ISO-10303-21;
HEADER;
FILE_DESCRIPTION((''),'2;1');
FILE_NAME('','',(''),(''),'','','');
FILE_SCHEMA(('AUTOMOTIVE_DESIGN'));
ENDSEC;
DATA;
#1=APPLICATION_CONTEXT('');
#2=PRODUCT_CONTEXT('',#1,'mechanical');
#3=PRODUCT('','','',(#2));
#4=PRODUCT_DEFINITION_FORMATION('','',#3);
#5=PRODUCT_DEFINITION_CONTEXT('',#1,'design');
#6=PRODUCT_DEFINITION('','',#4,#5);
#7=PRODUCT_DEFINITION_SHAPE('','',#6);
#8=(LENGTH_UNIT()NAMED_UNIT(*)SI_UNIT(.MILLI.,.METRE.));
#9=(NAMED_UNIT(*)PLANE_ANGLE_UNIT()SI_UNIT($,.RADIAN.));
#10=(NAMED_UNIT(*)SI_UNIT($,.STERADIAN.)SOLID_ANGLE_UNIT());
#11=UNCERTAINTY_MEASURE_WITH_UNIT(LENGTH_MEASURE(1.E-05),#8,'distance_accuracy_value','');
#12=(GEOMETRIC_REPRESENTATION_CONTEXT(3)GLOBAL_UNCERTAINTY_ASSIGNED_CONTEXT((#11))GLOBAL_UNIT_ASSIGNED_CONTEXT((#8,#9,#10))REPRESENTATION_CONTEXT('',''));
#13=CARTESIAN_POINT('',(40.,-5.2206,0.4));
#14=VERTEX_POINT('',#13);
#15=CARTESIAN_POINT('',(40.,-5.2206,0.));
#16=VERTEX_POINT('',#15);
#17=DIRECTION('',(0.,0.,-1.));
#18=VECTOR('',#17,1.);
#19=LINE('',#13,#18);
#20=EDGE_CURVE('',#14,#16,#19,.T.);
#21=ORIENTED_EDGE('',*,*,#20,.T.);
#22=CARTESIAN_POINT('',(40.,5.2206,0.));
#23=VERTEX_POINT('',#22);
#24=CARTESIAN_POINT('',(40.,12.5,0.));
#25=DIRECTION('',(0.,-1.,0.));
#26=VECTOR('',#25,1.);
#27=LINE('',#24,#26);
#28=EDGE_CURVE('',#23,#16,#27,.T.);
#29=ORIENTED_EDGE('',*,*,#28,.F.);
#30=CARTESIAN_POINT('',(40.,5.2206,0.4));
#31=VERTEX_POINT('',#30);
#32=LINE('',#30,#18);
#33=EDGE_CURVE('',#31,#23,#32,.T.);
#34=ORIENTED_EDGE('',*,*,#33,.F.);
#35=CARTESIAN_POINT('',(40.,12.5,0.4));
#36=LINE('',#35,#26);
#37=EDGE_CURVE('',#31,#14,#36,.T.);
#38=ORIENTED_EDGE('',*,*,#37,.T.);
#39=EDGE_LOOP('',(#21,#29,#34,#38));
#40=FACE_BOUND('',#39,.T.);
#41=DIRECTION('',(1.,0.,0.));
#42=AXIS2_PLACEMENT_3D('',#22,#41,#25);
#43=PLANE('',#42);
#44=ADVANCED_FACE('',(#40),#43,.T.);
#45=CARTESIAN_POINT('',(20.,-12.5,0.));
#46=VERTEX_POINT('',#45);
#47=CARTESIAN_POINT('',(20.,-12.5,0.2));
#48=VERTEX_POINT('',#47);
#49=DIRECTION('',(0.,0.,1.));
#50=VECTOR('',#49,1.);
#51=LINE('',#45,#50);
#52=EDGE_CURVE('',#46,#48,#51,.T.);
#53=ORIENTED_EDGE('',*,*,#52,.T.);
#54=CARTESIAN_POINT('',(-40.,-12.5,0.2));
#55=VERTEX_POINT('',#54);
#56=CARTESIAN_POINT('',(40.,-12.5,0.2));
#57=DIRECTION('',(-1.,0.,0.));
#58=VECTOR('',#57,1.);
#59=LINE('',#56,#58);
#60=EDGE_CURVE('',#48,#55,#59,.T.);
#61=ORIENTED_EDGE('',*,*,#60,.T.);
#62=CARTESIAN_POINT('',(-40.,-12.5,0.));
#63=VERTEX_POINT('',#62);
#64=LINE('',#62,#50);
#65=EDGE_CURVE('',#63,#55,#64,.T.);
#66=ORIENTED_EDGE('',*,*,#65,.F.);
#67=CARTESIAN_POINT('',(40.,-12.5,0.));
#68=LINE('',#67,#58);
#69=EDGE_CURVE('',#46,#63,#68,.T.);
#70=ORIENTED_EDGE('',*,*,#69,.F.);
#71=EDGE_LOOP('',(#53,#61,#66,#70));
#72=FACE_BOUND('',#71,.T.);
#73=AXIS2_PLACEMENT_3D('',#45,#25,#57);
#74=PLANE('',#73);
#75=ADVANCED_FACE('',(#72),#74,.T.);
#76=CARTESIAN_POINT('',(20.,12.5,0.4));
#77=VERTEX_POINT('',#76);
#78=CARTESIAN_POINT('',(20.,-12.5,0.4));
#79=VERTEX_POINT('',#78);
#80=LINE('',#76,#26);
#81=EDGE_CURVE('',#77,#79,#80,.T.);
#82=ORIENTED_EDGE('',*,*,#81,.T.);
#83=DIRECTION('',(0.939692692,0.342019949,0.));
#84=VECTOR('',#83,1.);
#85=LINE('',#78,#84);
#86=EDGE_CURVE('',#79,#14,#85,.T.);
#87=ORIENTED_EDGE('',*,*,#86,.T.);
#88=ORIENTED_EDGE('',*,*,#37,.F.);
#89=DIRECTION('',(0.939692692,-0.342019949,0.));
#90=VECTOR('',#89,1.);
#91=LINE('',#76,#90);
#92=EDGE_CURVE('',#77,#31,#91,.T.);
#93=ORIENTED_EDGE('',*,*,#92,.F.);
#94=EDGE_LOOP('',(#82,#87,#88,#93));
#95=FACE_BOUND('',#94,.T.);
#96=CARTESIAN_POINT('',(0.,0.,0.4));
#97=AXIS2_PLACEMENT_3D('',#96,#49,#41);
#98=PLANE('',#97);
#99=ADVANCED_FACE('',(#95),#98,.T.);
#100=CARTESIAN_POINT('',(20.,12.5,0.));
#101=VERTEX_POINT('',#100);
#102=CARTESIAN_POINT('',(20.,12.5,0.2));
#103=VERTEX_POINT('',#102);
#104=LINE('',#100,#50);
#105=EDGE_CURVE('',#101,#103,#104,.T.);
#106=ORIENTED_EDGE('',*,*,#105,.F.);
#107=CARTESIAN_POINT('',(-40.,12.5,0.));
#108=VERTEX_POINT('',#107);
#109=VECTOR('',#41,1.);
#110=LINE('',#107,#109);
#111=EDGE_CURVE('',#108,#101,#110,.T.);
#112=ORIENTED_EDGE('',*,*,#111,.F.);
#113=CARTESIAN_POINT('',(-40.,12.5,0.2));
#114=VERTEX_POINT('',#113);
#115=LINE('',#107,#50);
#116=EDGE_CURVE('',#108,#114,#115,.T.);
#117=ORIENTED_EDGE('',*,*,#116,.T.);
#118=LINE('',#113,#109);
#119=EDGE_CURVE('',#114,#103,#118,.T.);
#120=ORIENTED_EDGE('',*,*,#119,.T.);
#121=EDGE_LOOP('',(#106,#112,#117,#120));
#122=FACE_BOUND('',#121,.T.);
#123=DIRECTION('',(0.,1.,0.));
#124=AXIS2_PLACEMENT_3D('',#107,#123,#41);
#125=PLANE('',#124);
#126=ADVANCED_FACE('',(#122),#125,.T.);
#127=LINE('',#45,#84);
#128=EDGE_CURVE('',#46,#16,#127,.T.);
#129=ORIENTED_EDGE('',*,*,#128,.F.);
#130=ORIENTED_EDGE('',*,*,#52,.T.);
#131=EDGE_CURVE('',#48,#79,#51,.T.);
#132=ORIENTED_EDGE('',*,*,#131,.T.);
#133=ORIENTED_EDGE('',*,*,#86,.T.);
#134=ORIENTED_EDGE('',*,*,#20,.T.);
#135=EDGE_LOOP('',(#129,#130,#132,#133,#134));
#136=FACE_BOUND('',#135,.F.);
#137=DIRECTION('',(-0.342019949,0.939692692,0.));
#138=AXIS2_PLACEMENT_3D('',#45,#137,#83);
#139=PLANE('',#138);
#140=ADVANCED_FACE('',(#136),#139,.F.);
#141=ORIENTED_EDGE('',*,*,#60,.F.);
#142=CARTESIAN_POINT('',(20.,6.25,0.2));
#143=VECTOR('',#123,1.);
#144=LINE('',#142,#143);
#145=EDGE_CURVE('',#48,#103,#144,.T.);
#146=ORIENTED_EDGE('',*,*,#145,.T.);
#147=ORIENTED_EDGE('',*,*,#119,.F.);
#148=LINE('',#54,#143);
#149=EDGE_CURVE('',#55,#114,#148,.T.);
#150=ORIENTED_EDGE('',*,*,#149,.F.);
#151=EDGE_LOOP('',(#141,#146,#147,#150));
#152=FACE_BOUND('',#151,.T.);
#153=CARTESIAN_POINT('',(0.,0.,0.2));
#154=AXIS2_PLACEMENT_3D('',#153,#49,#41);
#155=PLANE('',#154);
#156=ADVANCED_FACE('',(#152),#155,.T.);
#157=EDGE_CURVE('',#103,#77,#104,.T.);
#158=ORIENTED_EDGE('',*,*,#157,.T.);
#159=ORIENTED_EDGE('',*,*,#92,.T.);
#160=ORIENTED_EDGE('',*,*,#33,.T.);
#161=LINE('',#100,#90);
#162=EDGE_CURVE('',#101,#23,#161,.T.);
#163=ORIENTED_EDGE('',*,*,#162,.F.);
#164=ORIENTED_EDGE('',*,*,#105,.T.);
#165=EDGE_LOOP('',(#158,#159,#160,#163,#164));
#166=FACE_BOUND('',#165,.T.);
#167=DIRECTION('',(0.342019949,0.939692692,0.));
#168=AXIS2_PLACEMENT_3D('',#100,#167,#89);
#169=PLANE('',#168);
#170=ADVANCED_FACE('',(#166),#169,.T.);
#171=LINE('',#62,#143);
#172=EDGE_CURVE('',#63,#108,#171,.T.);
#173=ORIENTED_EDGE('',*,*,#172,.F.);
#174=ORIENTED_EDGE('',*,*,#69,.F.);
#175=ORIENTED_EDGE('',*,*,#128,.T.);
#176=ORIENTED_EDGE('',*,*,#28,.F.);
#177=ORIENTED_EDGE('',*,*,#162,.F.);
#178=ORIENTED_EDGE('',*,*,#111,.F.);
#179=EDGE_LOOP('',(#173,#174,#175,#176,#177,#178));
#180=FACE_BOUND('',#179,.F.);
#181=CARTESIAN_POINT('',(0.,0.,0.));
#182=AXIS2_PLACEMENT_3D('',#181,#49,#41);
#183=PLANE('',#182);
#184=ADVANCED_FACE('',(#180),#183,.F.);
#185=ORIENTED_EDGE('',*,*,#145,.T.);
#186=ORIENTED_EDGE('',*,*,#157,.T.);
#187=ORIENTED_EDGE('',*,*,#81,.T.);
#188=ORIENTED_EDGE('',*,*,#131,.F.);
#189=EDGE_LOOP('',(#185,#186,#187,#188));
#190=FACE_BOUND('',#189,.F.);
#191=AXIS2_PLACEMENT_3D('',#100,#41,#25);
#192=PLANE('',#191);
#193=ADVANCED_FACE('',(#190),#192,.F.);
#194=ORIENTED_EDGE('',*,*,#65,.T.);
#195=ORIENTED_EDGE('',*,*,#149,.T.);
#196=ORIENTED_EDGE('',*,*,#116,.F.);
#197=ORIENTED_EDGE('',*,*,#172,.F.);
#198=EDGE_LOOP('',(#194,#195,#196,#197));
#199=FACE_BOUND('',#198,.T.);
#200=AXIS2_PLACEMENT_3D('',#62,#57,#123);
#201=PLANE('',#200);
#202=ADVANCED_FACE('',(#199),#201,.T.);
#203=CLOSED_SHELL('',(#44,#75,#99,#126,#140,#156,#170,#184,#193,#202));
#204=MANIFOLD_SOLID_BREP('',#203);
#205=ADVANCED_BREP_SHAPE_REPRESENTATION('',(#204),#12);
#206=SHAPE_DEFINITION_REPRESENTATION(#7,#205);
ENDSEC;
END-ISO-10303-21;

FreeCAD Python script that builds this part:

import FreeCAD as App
import Part
import Sketcher

V = App.Vector
Q = App.Units.Quantity


def add_polygon(sketch, points):
    """Adds a closed chain of lines whose ends are joined by coincident constraints."""
    first, n = sketch.GeometryCount, len(points)
    for a, b in zip(points, points[1:] + points[:1]):
        sketch.addGeometry(Part.LineSegment(App.Vector(*a, 0), App.Vector(*b, 0)), False)
    for i in range(n):
        sketch.addConstraint(Sketcher.Constraint("Coincident", first + i, 2, first + (i + 1) % n, 1))

doc = App.newDocument("Part")
body = doc.addObject("PartDesign::Body", "Body")

# Sketch on XY plane
sketch1 = doc.addObject("Sketcher::SketchObject", "Sketch")
body.addObject(sketch1)
sketch1.AttachmentSupport = (doc.XY_Plane, [""])
sketch1.MapMode = "FlatFace"
add_polygon(sketch1, [(20, 12), (-40, 12), (-40, -12), (20, -12), (40, -5), (40, 5)])  # lines 0-5
sketch1.addConstraint([
    Sketcher.Constraint("Horizontal", 0),
    Sketcher.Constraint("Vertical", 1),
    Sketcher.Constraint("Horizontal", 2),
    Sketcher.Constraint("Vertical", 4),
    Sketcher.Constraint("Symmetric", 2, 2, 5, 2, -1),
    Sketcher.Constraint("Equal", 3, 5),
    Sketcher.Constraint("DistanceY", 1, 2, 1, 1, 25.0),
    Sketcher.Constraint("Angle", 3, Q("20 deg")),
    Sketcher.Constraint("DistanceX", -1, 1, 2, 2, 20.0),
    Sketcher.Constraint("DistanceX", 2, 2, 3, 2, 20.0),
    Sketcher.Constraint("DistanceX", 1, 2, 3, 2, 80.0),
])
pad1 = doc.addObject("PartDesign::Pad", "Pad")
body.addObject(pad1)
pad1.Profile = sketch1
pad1.Length = 0.2

# Sketch on XY plane
sketch2 = doc.addObject("Sketcher::SketchObject", "Sketch001")
body.addObject(sketch2)
sketch2.AttachmentSupport = (doc.XY_Plane, [""])
sketch2.MapMode = "FlatFace"
add_polygon(sketch2, [(40, 5), (20, 12), (20, -12), (40, -5)])  # lines 0-3
sketch2.addConstraint([
    Sketcher.Constraint("Vertical", 1),
    Sketcher.Constraint("Vertical", 3),
    Sketcher.Constraint("Equal", 0, 2),
    Sketcher.Constraint("DistanceY", 1, 2, 1, 1, 25.0),
    Sketcher.Constraint("Angle", 2, Q("20 deg")),
    Sketcher.Constraint("DistanceX", -1, 1, 0, 2, 20.0),
    Sketcher.Constraint("DistanceX", 1, 2, 2, 2, 20.0),
    Sketcher.Constraint("DistanceY", -1, 1, 0, 2, 12.5),
])
pad2 = doc.addObject("PartDesign::Pad", "Pad001")
body.addObject(pad2)
pad2.Profile = sketch2
pad2.Length = 0.4

doc.recompute()
